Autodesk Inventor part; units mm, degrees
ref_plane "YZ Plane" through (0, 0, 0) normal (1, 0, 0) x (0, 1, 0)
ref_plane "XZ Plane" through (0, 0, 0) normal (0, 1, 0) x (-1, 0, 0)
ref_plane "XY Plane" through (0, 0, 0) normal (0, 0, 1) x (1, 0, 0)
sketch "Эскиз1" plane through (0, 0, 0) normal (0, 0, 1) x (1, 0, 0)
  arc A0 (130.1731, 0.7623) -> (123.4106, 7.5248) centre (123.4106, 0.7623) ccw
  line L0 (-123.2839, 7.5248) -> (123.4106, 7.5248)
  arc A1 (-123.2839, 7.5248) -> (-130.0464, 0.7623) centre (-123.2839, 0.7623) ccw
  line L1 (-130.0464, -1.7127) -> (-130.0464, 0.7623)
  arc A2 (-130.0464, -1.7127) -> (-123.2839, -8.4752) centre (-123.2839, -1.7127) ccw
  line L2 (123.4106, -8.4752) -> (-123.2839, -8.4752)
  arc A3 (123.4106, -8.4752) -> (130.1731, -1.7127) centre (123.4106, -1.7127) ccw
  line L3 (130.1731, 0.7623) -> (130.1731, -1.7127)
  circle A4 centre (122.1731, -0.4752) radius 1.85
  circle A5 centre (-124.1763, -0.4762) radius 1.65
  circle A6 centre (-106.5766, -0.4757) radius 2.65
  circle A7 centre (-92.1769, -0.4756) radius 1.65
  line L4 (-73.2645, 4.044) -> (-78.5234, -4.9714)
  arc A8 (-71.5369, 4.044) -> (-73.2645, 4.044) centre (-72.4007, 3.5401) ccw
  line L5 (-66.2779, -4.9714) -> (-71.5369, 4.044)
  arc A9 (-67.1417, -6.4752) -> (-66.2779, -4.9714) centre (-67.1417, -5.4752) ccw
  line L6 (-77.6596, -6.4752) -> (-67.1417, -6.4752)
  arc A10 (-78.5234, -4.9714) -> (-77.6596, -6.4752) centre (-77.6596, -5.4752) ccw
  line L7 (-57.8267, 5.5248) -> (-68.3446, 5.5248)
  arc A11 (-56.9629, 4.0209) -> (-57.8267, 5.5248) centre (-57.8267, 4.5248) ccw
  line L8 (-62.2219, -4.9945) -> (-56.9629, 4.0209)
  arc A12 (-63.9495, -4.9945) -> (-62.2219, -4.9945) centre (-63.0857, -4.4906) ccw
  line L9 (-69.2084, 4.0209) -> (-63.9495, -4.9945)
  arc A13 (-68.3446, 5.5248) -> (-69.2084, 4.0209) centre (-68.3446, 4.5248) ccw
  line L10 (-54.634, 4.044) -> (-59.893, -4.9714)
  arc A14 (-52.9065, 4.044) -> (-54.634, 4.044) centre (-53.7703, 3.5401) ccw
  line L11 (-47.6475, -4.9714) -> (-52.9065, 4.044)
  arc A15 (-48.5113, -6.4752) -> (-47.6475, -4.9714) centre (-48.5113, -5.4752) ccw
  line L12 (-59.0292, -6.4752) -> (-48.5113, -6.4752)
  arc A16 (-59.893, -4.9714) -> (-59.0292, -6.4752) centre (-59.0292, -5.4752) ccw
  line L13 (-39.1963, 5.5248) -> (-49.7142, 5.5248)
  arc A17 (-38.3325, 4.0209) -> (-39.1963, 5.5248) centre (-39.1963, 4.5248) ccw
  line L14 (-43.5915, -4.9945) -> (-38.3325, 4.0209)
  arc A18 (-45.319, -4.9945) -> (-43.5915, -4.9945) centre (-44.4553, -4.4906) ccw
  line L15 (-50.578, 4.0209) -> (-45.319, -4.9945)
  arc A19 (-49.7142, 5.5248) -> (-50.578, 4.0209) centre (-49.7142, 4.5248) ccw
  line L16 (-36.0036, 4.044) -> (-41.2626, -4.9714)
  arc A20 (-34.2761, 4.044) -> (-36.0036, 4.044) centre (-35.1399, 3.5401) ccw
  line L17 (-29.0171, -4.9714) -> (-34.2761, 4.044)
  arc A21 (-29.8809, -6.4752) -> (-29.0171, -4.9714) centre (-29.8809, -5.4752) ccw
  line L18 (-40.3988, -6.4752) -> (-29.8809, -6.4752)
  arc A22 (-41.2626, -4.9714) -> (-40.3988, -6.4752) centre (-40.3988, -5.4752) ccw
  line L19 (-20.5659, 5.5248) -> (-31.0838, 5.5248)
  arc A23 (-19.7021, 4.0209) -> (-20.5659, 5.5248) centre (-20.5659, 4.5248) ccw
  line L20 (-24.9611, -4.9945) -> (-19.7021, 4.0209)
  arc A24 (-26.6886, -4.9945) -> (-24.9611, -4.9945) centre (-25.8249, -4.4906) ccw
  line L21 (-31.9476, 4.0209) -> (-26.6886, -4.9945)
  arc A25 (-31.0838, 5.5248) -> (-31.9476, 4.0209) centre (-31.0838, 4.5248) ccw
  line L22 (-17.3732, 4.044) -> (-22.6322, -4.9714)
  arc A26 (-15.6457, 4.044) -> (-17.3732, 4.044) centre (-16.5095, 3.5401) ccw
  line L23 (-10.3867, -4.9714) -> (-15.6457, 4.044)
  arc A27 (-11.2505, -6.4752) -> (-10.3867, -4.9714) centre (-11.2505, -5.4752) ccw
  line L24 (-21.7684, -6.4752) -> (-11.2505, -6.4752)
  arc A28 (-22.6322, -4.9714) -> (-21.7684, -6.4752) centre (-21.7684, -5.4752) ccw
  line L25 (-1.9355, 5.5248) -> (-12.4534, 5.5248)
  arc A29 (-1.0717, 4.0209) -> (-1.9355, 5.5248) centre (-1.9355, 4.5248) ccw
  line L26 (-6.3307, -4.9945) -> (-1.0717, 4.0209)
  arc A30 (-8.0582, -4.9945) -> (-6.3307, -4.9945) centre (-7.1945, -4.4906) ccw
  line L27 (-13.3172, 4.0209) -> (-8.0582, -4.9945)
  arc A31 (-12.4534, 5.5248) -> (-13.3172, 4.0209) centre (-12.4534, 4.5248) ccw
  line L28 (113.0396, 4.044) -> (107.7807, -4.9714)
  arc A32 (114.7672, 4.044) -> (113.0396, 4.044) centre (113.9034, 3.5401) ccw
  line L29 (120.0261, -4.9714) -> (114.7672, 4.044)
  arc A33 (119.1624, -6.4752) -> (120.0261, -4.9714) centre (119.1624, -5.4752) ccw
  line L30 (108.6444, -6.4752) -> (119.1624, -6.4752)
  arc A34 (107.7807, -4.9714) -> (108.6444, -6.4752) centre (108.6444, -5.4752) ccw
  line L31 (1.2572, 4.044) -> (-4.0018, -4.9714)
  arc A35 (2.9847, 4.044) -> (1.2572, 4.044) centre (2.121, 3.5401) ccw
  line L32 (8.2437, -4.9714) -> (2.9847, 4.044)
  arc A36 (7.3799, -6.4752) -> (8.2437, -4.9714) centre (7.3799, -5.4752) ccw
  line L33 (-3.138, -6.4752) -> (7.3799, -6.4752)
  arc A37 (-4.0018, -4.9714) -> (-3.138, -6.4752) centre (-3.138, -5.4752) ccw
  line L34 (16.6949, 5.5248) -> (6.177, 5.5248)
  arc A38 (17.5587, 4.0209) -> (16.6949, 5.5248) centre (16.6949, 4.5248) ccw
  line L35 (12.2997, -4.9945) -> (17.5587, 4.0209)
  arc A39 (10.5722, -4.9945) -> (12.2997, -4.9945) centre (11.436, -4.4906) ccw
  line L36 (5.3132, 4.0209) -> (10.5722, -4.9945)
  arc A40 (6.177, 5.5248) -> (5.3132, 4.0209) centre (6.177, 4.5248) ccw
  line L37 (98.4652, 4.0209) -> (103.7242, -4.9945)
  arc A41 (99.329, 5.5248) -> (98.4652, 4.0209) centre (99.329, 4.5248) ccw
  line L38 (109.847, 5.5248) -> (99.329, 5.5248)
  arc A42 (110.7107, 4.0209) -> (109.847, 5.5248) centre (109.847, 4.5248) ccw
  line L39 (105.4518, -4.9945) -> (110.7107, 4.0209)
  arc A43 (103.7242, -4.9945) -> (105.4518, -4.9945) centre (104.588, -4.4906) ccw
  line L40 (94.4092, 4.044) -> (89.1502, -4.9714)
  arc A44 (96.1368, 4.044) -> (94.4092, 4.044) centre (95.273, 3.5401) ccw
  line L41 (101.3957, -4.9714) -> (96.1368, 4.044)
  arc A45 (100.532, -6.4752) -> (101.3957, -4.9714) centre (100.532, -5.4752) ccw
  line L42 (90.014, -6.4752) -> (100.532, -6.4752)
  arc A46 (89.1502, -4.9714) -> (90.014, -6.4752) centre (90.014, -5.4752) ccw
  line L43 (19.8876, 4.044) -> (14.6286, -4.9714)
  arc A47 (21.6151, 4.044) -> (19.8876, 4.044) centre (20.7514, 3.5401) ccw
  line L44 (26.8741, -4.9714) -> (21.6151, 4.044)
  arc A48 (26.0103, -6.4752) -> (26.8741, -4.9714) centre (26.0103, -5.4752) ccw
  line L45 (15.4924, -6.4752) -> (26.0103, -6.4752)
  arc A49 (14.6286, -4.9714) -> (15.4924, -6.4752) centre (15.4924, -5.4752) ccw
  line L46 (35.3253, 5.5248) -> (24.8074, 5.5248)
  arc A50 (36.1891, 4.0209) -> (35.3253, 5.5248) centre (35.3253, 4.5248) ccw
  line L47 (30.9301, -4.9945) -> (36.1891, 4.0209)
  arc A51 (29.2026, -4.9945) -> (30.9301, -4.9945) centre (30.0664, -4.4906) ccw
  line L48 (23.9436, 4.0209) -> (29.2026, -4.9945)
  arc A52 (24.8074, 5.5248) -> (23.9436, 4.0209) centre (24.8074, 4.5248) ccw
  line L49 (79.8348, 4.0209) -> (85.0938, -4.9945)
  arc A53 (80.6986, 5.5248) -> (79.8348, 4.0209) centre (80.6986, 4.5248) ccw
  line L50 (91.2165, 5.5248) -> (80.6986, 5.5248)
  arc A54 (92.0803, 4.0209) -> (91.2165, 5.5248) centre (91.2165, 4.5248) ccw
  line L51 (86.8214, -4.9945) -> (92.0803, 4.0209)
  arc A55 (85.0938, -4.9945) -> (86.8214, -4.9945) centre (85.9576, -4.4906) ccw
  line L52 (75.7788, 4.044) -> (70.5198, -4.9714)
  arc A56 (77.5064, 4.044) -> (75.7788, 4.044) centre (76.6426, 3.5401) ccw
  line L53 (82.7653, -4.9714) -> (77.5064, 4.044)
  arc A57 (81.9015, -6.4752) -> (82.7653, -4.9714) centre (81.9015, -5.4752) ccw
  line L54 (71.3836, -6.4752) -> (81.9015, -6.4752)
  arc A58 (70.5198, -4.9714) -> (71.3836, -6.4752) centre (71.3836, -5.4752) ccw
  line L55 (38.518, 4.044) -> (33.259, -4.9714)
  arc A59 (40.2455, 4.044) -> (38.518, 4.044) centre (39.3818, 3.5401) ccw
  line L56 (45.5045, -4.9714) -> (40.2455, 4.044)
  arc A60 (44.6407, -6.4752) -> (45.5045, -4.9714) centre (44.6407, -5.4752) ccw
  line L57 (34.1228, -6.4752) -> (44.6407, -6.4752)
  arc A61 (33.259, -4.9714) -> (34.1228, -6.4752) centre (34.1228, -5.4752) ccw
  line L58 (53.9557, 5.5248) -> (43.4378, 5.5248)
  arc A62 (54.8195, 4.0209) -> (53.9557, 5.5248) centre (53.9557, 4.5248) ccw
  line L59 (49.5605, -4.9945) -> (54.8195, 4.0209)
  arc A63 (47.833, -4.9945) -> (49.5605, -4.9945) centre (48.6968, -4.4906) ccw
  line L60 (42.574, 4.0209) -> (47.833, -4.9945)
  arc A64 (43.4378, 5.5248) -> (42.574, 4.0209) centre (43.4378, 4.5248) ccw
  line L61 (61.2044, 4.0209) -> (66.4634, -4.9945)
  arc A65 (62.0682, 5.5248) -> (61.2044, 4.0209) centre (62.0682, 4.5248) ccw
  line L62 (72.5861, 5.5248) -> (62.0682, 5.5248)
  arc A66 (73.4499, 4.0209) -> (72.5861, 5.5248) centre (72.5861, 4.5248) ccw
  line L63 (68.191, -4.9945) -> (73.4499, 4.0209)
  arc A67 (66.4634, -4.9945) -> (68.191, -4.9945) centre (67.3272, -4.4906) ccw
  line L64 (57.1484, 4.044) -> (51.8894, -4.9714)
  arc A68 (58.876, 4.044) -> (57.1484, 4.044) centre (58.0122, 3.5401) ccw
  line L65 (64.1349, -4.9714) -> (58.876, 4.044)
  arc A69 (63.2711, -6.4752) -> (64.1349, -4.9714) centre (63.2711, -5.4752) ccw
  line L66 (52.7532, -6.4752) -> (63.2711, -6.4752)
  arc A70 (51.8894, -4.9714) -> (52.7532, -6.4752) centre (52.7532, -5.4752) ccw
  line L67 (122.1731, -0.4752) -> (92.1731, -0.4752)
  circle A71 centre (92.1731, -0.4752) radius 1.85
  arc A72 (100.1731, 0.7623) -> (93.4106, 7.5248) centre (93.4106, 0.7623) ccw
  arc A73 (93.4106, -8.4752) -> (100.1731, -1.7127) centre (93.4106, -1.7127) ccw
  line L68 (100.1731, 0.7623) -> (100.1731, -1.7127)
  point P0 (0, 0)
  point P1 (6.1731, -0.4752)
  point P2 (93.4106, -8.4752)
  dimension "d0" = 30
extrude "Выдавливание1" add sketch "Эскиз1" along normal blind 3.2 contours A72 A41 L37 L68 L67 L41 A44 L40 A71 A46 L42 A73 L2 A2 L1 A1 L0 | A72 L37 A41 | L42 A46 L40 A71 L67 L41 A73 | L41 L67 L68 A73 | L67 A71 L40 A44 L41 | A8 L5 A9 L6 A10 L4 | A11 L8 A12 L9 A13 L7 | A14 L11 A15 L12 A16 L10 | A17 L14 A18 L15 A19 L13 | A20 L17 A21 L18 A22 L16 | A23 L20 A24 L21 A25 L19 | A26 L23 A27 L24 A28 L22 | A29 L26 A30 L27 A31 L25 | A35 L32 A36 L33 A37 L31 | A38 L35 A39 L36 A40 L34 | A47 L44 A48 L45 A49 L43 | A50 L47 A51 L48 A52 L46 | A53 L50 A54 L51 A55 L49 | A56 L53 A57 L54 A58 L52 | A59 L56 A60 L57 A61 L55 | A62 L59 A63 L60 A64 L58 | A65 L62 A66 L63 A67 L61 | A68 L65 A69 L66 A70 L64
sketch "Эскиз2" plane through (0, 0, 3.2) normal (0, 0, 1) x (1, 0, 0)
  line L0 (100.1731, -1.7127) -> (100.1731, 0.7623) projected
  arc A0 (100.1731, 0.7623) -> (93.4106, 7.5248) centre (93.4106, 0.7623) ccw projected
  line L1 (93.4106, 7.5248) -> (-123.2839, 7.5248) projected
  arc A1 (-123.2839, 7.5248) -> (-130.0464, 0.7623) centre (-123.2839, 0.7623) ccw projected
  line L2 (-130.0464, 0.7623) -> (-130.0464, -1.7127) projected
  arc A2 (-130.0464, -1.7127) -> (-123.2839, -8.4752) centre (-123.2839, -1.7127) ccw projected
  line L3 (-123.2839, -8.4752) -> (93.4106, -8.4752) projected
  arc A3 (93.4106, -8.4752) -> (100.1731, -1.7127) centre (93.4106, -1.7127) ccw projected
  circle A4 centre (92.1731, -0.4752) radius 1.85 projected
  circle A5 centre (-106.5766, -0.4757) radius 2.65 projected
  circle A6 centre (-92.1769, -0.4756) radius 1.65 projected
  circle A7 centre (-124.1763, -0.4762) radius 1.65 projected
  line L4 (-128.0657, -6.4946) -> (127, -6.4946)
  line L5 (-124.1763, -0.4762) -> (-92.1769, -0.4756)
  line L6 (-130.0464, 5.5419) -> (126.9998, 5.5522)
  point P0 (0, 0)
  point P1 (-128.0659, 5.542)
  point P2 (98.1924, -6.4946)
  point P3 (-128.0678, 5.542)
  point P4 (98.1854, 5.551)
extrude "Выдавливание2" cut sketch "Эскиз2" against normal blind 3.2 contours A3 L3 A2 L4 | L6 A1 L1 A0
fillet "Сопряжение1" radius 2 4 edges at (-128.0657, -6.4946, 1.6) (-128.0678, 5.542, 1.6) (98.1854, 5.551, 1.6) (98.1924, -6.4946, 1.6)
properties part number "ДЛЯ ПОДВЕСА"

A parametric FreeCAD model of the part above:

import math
import FreeCAD as App
import Part
import Sketcher
Q = App.Units.Quantity


def edges_at(feature, points):
    """Names of the edges that pass closest to the given points."""
    edges = feature.Shape.Edges
    near = lambda p: min(range(len(edges)), key=lambda i: edges[i].distToShape(Part.Vertex(*p))[0])
    return sorted({f"Edge{near(p) + 1}" for p in points})

doc = App.newDocument("Part")
body = doc.addObject("PartDesign::Body", "Body")

# Sketch on XY plane
sketch1 = doc.addObject("Sketcher::SketchObject", "Sketch")
body.addObject(sketch1)
sketch1.AttachmentSupport = (doc.XY_Plane, [""])
sketch1.MapMode = "FlatFace"
sketch1.addGeometry(Part.LineSegment(App.Vector(93.4, 7.5, 0), App.Vector(-123.3, 7.5, 0)), False)
sketch1.addGeometry(Part.ArcOfCircle(Part.Circle(App.Vector(-123.3, 0.8, 0), App.Vector(0, 0, 1), 6.8), math.radians(90), math.radians(180)), False)
sketch1.addGeometry(Part.LineSegment(App.Vector(-130, 0.8, 0), App.Vector(-130, -1.7, 0)), False)
sketch1.addGeometry(Part.ArcOfCircle(Part.Circle(App.Vector(-123.3, -1.7, 0), App.Vector(0, 0, 1), 6.8), math.radians(180), math.radians(270)), False)
sketch1.addGeometry(Part.LineSegment(App.Vector(-123.3, -8.5, 0), App.Vector(93.4, -8.5, 0)), False)
sketch1.addGeometry(Part.ArcOfCircle(Part.Circle(App.Vector(93.4, -1.7, 0), App.Vector(0, 0, 1), 6.8), math.radians(-90), math.radians(0)), False)
sketch1.addGeometry(Part.LineSegment(App.Vector(100.2, -1.7, 0), App.Vector(100.2, 0.8, 0)), False)
sketch1.addGeometry(Part.ArcOfCircle(Part.Circle(App.Vector(93.4, 0.8, 0), App.Vector(0, 0, 1), 6.8), math.radians(0), math.radians(90)), False)
sketch1.addGeometry(Part.Circle(App.Vector(92.2, -0.5, 0), App.Vector(0, 0, 1), 1.9), False)
sketch1.addGeometry(Part.Circle(App.Vector(-124.2, -0.5, 0), App.Vector(0, 0, 1), 1.6), False)
sketch1.addGeometry(Part.Circle(App.Vector(-106.6, -0.5, 0), App.Vector(0, 0, 1), 2.6), False)
sketch1.addGeometry(Part.Circle(App.Vector(-92.2, -0.5, 0), App.Vector(0, 0, 1), 1.6), False)
sketch1.addConstraint(Sketcher.Constraint("Tangent", 0, 2, 1, 1))
sketch1.addConstraint(Sketcher.Constraint("Tangent", 1, 2, 2, 1))
sketch1.addConstraint(Sketcher.Constraint("Tangent", 2, 2, 3, 1))
sketch1.addConstraint(Sketcher.Constraint("Tangent", 3, 2, 4, 1))
sketch1.addConstraint(Sketcher.Constraint("Tangent", 4, 2, 5, 1))
sketch1.addConstraint(Sketcher.Constraint("Tangent", 5, 2, 6, 1))
sketch1.addConstraint(Sketcher.Constraint("Tangent", 6, 2, 7, 1))
sketch1.addConstraint(Sketcher.Constraint("Tangent", 7, 2, 0, 1))
sketch1.addConstraint(Sketcher.Constraint("Horizontal", 0))
sketch1.addConstraint(Sketcher.Constraint("Vertical", 2))
sketch1.addConstraint(Sketcher.Constraint("Horizontal", 4))
sketch1.addConstraint(Sketcher.Constraint("Vertical", 6))
sketch1.addConstraint(Sketcher.Constraint("Equal", 1, 3))
sketch1.addConstraint(Sketcher.Constraint("Equal", 3, 5))
sketch1.addConstraint(Sketcher.Constraint("Equal", 5, 7))
sketch1.addConstraint(Sketcher.Constraint("Equal", 9, 11))
sketch1.addConstraint(Sketcher.Constraint("Horizontal", 10, 3, 11, 3))
sketch1.addConstraint(Sketcher.Constraint("Diameter", 8, Q("3.7 mm")))
sketch1.addConstraint(Sketcher.Constraint("Diameter", 9, Q("3.3 mm")))
sketch1.addConstraint(Sketcher.Constraint("Diameter", 10, Q("5.3 mm")))
sketch1.addConstraint(Sketcher.Constraint("DistanceY", 4, 2, 8, 3, Q("8 mm")))
sketch1.addConstraint(Sketcher.Constraint("DistanceX", 8, 3, 5, 2, Q("8 mm")))
sketch1.addConstraint(Sketcher.Constraint("DistanceY", 8, 3, 7, 2, Q("8 mm")))
sketch1.addConstraint(Sketcher.Constraint("Radius", 1, Q("6.7625 mm")))
sketch1.addConstraint(Sketcher.Constraint("DistanceX", 11, 3, 8, 3, Q("184.35 mm")))
sketch1.addConstraint(Sketcher.Constraint("DistanceX", 1, 2, 9, 3, Q("5.87 mm")))
sketch1.addConstraint(Sketcher.Constraint("DistanceX", 0, 2, 0, 1, Q("216.6945 mm")))
sketch1.addConstraint(Sketcher.Constraint("DistanceX", 1, 3, -1, 1, Q("123.284 mm")))
sketch1.addConstraint(Sketcher.Constraint("DistanceY", 9, 3, 8, 3, Q("0.001 mm")))
sketch1.addConstraint(Sketcher.Constraint("DistanceY", 3, 3, 10, 3, Q("1.237 mm")))
sketch1.addConstraint(Sketcher.Constraint("DistanceY", -1, 1, 1, 3, Q("0.7623 mm")))
sketch1.addConstraint(Sketcher.Constraint("DistanceX", 10, 3, -1, 1, Q("106.5766 mm")))
pad1 = doc.addObject("PartDesign::Pad", "Pad")
body.addObject(pad1)
pad1.Profile = sketch1
pad1.Length = 3.2

# Sketch on XY plane
sketch2 = doc.addObject("Sketcher::SketchObject", "Sketch001")
body.addObject(sketch2)
sketch2.AttachmentSupport = (doc.XY_Plane, [""])
sketch2.MapMode = "FlatFace"
sketch2.AttachmentOffset = App.Placement(App.Vector(0, 0, 3.2), App.Rotation())
sketch2.addGeometry(Part.ArcOfCircle(Part.Circle(App.Vector(93, -2, 0), App.Vector(0, 0, 1), 7), math.radians(-90), math.radians(-45)), False)
sketch2.addGeometry(Part.LineSegment(App.Vector(98, -6, 0), App.Vector(-128, -6, 0)), False)
sketch2.addGeometry(Part.ArcOfCircle(Part.Circle(App.Vector(-123, -2, 0), App.Vector(0, 0, 1), 7), math.radians(-135), math.radians(-90)), False)
sketch2.addGeometry(Part.LineSegment(App.Vector(-123, -8, 0), App.Vector(93, -8, 0)), False)
sketch2.addGeometry(Part.LineSegment(App.Vector(-128, 6, 0), App.Vector(98, 6, 0)), False)
sketch2.addGeometry(Part.ArcOfCircle(Part.Circle(App.Vector(93, 1, 0), App.Vector(0, 0, 1), 7), math.radians(45), math.radians(90)), False)
sketch2.addGeometry(Part.LineSegment(App.Vector(93, 8, 0), App.Vector(-123, 8, 0)), False)
sketch2.addGeometry(Part.ArcOfCircle(Part.Circle(App.Vector(-123, 1, 0), App.Vector(0, 0, 1), 7), math.radians(90), math.radians(135)), False)
sketch2.addConstraint(Sketcher.Constraint("Coincident", 0, 2, 1, 1))
sketch2.addConstraint(Sketcher.Constraint("Coincident", 1, 2, 2, 1))
sketch2.addConstraint(Sketcher.Constraint("Tangent", 2, 2, 3, 1))
sketch2.addConstraint(Sketcher.Constraint("Tangent", 3, 2, 0, 1))
sketch2.addConstraint(Sketcher.Constraint("Coincident", 4, 2, 5, 1))
sketch2.addConstraint(Sketcher.Constraint("Tangent", 5, 2, 6, 1))
sketch2.addConstraint(Sketcher.Constraint("Tangent", 6, 2, 7, 1))
sketch2.addConstraint(Sketcher.Constraint("Coincident", 7, 2, 4, 1))
sketch2.addConstraint(Sketcher.Constraint("Horizontal", 1))
sketch2.addConstraint(Sketcher.Constraint("Horizontal", 3))
sketch2.addConstraint(Sketcher.Constraint("Horizontal", 6))
sketch2.addConstraint(Sketcher.Constraint("Equal", 0, 2))
sketch2.addConstraint(Sketcher.Constraint("Equal", 2, 5))
sketch2.addConstraint(Sketcher.Constraint("Equal", 5, 7))
sketch2.addConstraint(Sketcher.Constraint("Vertical", 0, 3, 5, 3))
sketch2.addConstraint(Sketcher.Constraint("Vertical", 2, 3, 7, 3))
sketch2.addConstraint(Sketcher.Constraint("DistanceY", 3, 2, 5, 2, Q("16 mm")))
sketch2.addConstraint(Sketcher.Constraint("Radius", 0, Q("6.7625 mm")))
sketch2.addConstraint(Sketcher.Constraint("DistanceX", 1, 2, 1, 1, Q("226.258 mm")))
sketch2.addConstraint(Sketcher.Constraint("DistanceX", 3, 1, 3, 2, Q("216.6945 mm")))
sketch2.addConstraint(Sketcher.Constraint("DistanceX", 2, 3, -1, 1, Q("123.284 mm")))
sketch2.addConstraint(Sketcher.Constraint("DistanceY", -1, 1, 4, 2, Q("5.551 mm")))
sketch2.addConstraint(Sketcher.Constraint("DistanceY", -1, 1, 7, 2, Q("5.542 mm")))
sketch2.addConstraint(Sketcher.Constraint("DistanceX", 7, 2, 6, 2, Q("4.784 mm")))
pocket1 = doc.addObject("PartDesign::Pocket", "Pocket")
body.addObject(pocket1)
pocket1.Profile = sketch2
pocket1.Length = 3.2
doc.recompute()

fillet = doc.addObject("PartDesign::Fillet", "Fillet")
body.addObject(fillet)
fillet.Base = (pocket1, edges_at(pocket1, [
    (-128.066, -6.495, 1.6),
    (-128.068, 5.542, 1.6),
    (98.185, 5.551, 1.6),
    (98.192, -6.495, 1.6),
]))
fillet.Radius = 2

doc.recompute()
